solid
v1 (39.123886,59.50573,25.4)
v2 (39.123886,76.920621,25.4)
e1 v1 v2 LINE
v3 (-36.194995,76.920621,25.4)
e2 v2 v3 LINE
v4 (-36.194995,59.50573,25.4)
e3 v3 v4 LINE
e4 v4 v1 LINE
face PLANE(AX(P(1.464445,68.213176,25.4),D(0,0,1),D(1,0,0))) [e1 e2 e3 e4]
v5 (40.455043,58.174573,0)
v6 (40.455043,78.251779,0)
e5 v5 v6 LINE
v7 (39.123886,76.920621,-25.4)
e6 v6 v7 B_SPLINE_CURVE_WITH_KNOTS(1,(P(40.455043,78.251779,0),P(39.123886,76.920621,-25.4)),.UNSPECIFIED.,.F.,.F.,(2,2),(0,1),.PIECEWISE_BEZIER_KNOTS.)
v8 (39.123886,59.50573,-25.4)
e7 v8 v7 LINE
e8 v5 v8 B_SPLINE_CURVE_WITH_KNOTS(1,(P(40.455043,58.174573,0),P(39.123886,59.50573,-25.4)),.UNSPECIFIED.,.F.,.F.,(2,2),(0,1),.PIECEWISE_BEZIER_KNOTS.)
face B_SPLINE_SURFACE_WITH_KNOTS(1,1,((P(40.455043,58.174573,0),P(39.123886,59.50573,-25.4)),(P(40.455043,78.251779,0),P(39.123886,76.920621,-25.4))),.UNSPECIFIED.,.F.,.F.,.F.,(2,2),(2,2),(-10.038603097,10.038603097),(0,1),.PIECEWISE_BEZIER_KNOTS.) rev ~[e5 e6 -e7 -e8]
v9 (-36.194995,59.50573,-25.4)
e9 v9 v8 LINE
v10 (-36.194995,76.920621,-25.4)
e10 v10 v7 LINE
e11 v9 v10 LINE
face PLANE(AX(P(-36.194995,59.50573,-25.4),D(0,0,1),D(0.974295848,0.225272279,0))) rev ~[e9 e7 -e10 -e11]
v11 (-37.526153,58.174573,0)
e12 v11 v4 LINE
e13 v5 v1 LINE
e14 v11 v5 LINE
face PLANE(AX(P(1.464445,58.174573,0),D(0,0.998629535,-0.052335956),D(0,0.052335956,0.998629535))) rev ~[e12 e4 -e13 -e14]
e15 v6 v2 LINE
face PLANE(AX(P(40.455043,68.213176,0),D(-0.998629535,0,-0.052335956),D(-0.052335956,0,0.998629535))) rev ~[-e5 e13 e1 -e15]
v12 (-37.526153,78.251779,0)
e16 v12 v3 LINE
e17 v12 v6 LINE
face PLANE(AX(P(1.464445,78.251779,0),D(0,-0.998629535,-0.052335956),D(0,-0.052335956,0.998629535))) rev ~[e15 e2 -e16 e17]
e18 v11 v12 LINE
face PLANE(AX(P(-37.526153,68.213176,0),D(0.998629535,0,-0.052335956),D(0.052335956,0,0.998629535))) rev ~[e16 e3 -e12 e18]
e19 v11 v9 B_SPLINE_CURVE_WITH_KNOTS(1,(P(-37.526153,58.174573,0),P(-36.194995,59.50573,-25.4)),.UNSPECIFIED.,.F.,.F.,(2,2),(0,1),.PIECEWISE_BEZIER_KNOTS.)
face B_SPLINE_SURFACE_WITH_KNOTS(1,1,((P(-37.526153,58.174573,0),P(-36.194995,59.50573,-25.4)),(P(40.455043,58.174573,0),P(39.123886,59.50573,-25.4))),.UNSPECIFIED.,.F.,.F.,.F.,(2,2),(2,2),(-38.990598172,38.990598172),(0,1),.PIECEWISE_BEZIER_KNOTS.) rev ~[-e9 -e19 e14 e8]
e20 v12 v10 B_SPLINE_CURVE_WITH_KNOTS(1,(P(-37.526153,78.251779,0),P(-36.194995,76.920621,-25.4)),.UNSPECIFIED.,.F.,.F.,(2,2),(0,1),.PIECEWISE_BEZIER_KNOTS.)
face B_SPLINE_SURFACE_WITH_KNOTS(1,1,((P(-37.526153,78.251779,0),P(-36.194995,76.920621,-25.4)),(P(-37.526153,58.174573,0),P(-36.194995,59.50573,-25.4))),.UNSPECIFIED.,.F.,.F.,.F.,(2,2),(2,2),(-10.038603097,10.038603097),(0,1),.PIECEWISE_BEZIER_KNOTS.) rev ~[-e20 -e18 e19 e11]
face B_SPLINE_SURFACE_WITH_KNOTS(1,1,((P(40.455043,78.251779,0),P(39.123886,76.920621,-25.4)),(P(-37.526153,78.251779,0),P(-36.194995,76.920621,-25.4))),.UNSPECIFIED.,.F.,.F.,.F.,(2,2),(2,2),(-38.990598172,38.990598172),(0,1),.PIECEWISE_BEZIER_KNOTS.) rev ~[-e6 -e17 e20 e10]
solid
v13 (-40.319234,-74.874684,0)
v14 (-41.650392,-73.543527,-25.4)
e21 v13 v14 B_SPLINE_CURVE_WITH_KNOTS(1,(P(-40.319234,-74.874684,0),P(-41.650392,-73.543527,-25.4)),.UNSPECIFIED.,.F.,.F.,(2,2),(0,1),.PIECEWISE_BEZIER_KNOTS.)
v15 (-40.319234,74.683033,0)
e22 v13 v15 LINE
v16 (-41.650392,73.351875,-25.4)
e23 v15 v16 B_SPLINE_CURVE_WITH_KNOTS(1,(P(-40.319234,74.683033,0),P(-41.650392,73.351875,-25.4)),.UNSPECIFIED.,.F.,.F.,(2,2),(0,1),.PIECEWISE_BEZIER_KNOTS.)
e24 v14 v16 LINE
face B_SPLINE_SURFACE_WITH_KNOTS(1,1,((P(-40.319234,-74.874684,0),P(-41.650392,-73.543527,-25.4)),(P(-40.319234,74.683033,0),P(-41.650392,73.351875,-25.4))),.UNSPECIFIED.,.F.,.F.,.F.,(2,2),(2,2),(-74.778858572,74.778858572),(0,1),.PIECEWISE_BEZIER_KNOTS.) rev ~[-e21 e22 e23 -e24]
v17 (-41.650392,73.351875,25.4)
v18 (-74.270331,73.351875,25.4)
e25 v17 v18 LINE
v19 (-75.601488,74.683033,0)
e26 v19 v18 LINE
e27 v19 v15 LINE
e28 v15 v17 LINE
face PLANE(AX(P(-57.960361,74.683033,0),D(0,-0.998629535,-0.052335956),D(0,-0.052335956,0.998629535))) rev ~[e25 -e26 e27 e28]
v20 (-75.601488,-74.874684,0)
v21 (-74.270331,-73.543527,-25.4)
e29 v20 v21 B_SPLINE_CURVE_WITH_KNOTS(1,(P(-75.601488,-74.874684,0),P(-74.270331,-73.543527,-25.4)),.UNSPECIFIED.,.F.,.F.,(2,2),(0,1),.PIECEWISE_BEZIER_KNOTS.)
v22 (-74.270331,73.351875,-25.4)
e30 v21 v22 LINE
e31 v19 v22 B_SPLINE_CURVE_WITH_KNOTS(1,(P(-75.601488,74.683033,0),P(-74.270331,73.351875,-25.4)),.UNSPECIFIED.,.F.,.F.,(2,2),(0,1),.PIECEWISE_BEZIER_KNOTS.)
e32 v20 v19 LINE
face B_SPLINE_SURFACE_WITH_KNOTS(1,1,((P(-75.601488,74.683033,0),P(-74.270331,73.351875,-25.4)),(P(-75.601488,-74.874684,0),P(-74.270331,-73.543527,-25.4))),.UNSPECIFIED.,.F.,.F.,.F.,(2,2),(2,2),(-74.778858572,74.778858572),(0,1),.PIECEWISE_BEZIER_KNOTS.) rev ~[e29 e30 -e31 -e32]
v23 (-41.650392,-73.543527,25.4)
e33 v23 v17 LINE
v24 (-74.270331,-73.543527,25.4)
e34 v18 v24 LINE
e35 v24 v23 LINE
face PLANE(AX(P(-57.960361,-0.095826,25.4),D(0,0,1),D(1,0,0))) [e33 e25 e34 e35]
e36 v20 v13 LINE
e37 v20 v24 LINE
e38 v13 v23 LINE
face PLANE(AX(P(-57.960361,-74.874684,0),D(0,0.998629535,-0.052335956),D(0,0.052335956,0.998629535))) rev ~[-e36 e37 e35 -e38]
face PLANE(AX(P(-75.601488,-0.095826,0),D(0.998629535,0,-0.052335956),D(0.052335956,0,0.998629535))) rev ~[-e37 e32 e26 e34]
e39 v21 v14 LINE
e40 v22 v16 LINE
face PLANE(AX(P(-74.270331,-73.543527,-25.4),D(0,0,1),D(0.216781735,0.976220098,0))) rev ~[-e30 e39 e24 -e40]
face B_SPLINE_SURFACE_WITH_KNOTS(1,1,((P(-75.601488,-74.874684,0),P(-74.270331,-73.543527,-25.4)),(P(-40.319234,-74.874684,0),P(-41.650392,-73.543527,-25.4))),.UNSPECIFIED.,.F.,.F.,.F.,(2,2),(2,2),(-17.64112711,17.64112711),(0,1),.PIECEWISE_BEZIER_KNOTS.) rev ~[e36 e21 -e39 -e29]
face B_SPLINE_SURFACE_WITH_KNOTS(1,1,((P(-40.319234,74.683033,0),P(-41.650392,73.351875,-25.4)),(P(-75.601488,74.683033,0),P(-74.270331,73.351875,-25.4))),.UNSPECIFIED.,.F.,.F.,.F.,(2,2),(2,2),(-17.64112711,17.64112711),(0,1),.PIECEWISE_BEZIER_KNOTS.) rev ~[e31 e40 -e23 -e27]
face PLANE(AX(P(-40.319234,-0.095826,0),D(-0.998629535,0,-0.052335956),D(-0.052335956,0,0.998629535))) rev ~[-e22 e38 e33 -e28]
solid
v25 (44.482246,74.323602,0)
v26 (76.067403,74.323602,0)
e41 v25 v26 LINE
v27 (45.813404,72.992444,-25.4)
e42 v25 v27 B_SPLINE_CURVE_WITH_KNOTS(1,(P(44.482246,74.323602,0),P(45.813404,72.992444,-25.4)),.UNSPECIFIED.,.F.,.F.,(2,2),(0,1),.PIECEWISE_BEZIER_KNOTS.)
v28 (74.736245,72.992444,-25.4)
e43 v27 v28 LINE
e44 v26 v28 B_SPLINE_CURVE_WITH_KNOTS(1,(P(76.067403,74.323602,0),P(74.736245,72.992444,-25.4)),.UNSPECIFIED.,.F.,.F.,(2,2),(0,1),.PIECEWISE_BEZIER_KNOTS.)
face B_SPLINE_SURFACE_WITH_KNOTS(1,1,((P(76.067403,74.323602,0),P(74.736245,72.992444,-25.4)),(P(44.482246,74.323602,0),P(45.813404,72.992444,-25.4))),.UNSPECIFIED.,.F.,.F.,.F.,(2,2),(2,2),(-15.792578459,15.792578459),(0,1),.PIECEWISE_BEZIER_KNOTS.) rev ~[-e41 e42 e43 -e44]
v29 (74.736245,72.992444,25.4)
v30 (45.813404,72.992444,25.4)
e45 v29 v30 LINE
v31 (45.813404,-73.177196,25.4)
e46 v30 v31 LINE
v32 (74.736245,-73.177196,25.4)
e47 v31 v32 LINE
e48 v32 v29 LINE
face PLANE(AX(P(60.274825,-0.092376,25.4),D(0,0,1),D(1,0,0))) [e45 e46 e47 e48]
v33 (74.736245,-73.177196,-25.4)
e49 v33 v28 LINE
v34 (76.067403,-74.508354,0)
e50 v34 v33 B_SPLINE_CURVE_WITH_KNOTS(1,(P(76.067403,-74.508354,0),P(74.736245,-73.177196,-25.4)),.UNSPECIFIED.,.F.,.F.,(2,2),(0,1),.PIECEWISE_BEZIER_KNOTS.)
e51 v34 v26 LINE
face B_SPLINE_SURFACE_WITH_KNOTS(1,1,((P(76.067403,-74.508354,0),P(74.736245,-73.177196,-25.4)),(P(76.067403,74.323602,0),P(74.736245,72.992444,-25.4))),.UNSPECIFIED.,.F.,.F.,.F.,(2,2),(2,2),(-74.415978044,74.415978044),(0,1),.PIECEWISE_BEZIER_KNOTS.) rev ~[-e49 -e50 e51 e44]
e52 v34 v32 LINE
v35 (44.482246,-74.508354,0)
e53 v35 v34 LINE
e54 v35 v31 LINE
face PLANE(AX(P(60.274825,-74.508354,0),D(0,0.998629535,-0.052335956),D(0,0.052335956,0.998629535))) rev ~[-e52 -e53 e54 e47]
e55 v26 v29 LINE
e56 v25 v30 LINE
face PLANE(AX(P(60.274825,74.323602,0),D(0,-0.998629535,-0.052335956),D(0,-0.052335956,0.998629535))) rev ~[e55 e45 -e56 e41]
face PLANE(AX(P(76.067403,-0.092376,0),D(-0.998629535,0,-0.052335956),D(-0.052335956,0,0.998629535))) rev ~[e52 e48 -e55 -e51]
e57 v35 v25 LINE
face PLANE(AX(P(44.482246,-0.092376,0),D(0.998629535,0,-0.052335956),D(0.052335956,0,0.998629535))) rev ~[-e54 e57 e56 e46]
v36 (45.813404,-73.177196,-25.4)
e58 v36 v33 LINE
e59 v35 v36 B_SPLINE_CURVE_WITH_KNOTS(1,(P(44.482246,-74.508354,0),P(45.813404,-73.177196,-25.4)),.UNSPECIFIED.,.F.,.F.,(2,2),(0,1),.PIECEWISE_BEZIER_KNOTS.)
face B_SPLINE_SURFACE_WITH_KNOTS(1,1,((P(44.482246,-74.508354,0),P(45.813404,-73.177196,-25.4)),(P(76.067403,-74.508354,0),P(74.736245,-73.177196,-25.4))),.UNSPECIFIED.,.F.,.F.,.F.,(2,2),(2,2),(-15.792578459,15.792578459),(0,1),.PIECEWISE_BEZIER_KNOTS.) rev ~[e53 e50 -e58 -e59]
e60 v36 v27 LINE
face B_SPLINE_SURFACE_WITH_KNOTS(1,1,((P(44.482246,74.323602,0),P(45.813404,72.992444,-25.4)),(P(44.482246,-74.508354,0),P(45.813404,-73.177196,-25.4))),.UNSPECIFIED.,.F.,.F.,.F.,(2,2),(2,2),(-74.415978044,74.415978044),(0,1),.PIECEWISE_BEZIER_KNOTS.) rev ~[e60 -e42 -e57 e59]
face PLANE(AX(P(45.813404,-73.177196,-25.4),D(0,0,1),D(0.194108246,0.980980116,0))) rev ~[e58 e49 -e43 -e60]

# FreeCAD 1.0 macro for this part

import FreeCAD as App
import Part
import Sketcher
from FreeCAD import Vector


def add_polygon(sketch, points):
    """Adds a closed chain of lines whose ends are joined by coincident constraints."""
    first, n = sketch.GeometryCount, len(points)
    for a, b in zip(points, points[1:] + points[:1]):
        sketch.addGeometry(Part.LineSegment(App.Vector(*a, 0), App.Vector(*b, 0)), False)
    for i in range(n):
        sketch.addConstraint(Sketcher.Constraint("Coincident", first + i, 2, first + (i + 1) % n, 1))

doc = App.newDocument("Part")
params = doc.addObject("Spreadsheet::Sheet", "Params")
for row, (alias, value) in enumerate([
    ("pad1_length", "1 in"),
    ("pad1_taper", "-3 deg"),
    ("pad2_length", "1 in"),
    ("pad2_taper", "-3 deg"),
    ("pad3_length", "1 in"),
    ("pad3_taper", "-3 deg"),
    ("pad4_length", "1 in"),
    ("pad4_taper", "-3 deg"),
    ("pad5_length", "1 in"),
    ("pad5_taper", "-3 deg"),
    ("pad6_length", "1 in"),
    ("pad6_taper", "-3 deg"),
], start=1):
    params.set(f"A{row}", alias)
    params.set(f"B{row}", "=" + value)
    params.setAlias(f"B{row}", alias)

body = doc.addObject("PartDesign::Body", "Body")

sketch1 = body.newObject("Sketcher::SketchObject", "Sketch")
sketch1.AttachmentSupport = (doc.getObject("XY_Plane"), [""])
sketch1.MapMode = "FlatFace"
add_polygon(sketch1, [(-76, 75), (-76, -75), (-40, -75), (-40, 75)])
sketch1.addConstraint([
    Sketcher.Constraint("Vertical", 0),
    Sketcher.Constraint("Horizontal", 1),
    Sketcher.Constraint("Vertical", 2),
    Sketcher.Constraint("Horizontal", 3),
    Sketcher.Constraint("DistanceX", 1, 1, 1, 2, 35.282254),
    Sketcher.Constraint("DistanceY", 0, 2, 0, 1, 149.557717),
    Sketcher.Constraint("DistanceX", 0, 2, -1, 1, 75.601488),
    Sketcher.Constraint("DistanceY", 0, 2, -1, 1, 74.874684),
])
pad1 = body.newObject("PartDesign::Pad", "Pad")
pad1.Profile = sketch1
pad1.setExpression("Length", "Params.pad1_length")
pad1.Reversed = True
pad1.setExpression("TaperAngle", "Params.pad1_taper")
pad2 = body.newObject("PartDesign::Pad", "Pad001")
pad2.Profile = sketch1
pad2.setExpression("Length", "Params.pad2_length")
pad2.setExpression("TaperAngle", "Params.pad2_taper")
body2 = doc.addObject("PartDesign::Body", "Body001")

sketch2 = body2.newObject("Sketcher::SketchObject", "Sketch001")
sketch2.AttachmentSupport = (doc.getObject("XY_Plane001"), [""])
sketch2.MapMode = "FlatFace"
add_polygon(sketch2, [(44, 74), (44, -75), (76, -75), (76, 74)])
sketch2.addConstraint([
    Sketcher.Constraint("Vertical", 0),
    Sketcher.Constraint("Horizontal", 1),
    Sketcher.Constraint("Vertical", 2),
    Sketcher.Constraint("Horizontal", 3),
    Sketcher.Constraint("DistanceX", 1, 1, 1, 2, 31.585157),
    Sketcher.Constraint("DistanceY", 0, 2, 0, 1, 148.831956),
    Sketcher.Constraint("DistanceX", -1, 1, 0, 2, 44.482246),
    Sketcher.Constraint("DistanceY", 0, 2, -1, 1, 74.508354),
])
pad3 = body2.newObject("PartDesign::Pad", "Pad002")
pad3.Profile = sketch2
pad3.setExpression("Length", "Params.pad3_length")
pad3.setExpression("TaperAngle", "Params.pad3_taper")
pad4 = body2.newObject("PartDesign::Pad", "Pad003")
pad4.Profile = sketch2
pad4.setExpression("Length", "Params.pad4_length")
pad4.Reversed = True
pad4.setExpression("TaperAngle", "Params.pad4_taper")
body3 = doc.addObject("PartDesign::Body", "Body002")

sketch3 = body3.newObject("Sketcher::SketchObject", "Sketch002")
sketch3.AttachmentSupport = (doc.getObject("XY_Plane002"), [""])
sketch3.MapMode = "FlatFace"
add_polygon(sketch3, [(-38, 78), (-38, 58), (40, 58), (40, 78)])
sketch3.addConstraint([
    Sketcher.Constraint("Vertical", 0),
    Sketcher.Constraint("Horizontal", 1),
    Sketcher.Constraint("Vertical", 2),
    Sketcher.Constraint("Horizontal", 3),
    Sketcher.Constraint("DistanceX", 1, 1, 1, 2, 77.981196),
    Sketcher.Constraint("DistanceY", 0, 2, 0, 1, 20.077206),
    Sketcher.Constraint("DistanceY", -1, 1, 2, 2, 78.251779),
    Sketcher.Constraint("DistanceX", 0, 2, -1, 1, 37.526153),
])
pad5 = body3.newObject("PartDesign::Pad", "Pad004")
pad5.Profile = sketch3
pad5.setExpression("Length", "Params.pad5_length")
pad5.Reversed = True
pad5.setExpression("TaperAngle", "Params.pad5_taper")
pad6 = body3.newObject("PartDesign::Pad", "Pad005")
pad6.Profile = sketch3
pad6.setExpression("Length", "Params.pad6_length")
pad6.setExpression("TaperAngle", "Params.pad6_taper")

doc.recompute()
